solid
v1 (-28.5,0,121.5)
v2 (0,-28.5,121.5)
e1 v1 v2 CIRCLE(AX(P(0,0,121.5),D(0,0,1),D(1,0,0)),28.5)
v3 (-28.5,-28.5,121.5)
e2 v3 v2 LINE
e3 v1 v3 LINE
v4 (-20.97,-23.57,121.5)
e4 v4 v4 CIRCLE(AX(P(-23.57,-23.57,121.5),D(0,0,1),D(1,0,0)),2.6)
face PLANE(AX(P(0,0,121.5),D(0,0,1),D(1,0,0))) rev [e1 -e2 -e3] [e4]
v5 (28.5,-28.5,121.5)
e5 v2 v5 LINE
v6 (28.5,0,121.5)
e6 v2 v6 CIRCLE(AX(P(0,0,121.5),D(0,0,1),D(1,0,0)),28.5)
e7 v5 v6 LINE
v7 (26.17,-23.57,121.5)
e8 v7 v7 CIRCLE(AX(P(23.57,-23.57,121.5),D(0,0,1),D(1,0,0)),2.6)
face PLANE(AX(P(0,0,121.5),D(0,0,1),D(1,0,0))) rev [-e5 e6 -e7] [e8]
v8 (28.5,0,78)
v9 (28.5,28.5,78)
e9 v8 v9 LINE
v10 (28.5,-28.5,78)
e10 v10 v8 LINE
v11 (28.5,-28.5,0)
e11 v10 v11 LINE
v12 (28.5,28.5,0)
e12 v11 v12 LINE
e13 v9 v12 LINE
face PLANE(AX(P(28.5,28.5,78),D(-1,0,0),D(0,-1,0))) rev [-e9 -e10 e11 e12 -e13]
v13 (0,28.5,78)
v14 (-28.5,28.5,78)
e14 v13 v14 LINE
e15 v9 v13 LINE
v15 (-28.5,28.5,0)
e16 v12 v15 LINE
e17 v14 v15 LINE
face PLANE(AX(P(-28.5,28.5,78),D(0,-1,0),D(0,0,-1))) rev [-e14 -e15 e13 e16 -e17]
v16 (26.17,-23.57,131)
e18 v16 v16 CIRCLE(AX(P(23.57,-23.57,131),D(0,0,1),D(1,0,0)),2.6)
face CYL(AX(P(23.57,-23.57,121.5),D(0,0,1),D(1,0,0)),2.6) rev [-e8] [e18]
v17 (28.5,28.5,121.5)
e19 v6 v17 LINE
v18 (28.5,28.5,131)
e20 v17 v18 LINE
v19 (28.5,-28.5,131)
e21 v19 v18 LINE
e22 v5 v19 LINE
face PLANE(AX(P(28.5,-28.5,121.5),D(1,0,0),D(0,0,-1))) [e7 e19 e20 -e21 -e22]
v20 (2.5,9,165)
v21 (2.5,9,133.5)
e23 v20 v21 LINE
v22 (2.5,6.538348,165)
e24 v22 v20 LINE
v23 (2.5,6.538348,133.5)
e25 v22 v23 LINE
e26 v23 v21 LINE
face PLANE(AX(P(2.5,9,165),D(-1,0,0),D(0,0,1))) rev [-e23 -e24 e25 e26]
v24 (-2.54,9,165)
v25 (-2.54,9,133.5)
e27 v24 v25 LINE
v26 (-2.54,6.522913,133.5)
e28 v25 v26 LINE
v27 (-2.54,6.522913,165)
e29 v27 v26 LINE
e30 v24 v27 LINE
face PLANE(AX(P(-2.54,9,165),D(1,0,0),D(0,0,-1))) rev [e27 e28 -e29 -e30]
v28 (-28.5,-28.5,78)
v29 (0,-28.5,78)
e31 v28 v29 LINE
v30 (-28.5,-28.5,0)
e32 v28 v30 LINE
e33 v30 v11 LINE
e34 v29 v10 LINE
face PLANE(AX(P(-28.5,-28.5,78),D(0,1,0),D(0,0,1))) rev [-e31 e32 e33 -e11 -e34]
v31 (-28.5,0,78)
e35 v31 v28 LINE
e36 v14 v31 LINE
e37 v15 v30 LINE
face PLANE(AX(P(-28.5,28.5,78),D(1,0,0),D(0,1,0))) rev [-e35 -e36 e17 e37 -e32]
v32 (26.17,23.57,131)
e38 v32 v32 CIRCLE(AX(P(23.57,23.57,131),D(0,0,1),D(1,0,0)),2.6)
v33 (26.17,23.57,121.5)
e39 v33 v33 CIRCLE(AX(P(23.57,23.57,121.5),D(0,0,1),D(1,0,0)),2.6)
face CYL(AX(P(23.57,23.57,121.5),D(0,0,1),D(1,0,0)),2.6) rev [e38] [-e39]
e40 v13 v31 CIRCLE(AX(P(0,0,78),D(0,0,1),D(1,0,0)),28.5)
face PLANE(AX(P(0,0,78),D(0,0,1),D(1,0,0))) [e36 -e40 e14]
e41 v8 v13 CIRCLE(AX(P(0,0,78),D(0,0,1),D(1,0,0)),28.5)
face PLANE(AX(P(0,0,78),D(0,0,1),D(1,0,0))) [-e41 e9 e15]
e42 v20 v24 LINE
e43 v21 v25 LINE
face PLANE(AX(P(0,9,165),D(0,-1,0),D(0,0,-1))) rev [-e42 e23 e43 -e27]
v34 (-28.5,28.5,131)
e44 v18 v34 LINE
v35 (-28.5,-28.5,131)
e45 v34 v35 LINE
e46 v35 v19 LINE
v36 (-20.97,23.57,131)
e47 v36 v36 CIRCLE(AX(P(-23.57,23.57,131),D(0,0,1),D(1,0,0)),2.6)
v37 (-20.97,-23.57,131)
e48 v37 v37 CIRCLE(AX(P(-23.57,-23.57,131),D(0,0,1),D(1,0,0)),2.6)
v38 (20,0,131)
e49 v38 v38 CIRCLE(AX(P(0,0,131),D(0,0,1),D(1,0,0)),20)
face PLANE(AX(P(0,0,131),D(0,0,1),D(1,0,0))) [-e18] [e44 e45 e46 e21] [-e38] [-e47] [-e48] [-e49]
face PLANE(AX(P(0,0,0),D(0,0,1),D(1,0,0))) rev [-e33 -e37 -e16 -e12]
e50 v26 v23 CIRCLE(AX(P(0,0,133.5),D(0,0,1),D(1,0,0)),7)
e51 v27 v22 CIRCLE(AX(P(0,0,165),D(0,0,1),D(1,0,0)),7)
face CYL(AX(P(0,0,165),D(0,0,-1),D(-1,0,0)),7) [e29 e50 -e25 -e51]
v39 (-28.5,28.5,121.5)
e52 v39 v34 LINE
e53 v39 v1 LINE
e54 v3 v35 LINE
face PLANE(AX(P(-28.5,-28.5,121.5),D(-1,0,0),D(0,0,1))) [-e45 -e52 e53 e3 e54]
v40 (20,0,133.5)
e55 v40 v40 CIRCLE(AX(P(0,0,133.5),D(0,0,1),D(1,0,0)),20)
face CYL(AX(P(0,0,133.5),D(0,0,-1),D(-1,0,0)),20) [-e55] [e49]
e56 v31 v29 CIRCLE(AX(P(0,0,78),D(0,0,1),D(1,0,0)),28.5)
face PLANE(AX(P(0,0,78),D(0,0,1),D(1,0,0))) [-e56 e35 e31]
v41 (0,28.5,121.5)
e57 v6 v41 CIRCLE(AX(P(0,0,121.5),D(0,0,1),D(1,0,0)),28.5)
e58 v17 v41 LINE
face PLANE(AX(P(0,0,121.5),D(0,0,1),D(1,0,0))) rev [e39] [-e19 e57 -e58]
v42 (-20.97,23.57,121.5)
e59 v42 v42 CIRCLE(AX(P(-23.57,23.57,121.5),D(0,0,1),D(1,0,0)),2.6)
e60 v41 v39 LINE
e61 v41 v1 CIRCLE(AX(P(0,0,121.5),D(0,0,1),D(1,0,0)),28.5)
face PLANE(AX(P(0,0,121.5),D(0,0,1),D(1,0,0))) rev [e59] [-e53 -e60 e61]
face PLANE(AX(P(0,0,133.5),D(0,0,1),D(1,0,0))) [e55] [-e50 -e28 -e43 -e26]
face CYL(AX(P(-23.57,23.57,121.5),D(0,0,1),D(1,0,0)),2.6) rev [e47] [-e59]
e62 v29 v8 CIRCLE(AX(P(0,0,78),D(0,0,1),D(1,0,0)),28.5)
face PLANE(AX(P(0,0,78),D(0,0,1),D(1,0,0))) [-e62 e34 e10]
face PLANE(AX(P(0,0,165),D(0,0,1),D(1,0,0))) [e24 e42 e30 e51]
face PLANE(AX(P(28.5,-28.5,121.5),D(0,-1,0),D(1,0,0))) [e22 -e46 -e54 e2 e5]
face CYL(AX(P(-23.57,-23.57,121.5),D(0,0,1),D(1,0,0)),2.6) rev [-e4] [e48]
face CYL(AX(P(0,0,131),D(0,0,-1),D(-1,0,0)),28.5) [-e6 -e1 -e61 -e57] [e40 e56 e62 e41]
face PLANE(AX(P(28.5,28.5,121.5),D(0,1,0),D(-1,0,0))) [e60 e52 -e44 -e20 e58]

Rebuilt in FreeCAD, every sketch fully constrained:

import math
import FreeCAD as App
import Part
import Sketcher
from FreeCAD import Vector
Q = App.Units.Quantity

doc = App.newDocument("Part")
body = doc.addObject("PartDesign::Body", "Body")

sketch1 = doc.addObject("Sketcher::SketchObject", "Sketch")
body.addObject(sketch1)
sketch1.AttachmentSupport = (doc.XY_Plane, [""])
sketch1.MapMode = "FlatFace"
sketch1.addGeometry(Part.LineSegment(Vector(-28, 28, 0), Vector(-28, -28, 0)), False)
sketch1.addGeometry(Part.LineSegment(Vector(-28, -28, 0), Vector(28, -28, 0)), False)
sketch1.addGeometry(Part.LineSegment(Vector(28, -28, 0), Vector(28, 28, 0)), False)
sketch1.addGeometry(Part.LineSegment(Vector(28, 28, 0), Vector(-28, 28, 0)), False)
sketch1.addConstraint(Sketcher.Constraint("Coincident", 0, 2, 1, 1))
sketch1.addConstraint(Sketcher.Constraint("Coincident", 1, 2, 2, 1))
sketch1.addConstraint(Sketcher.Constraint("Coincident", 2, 2, 3, 1))
sketch1.addConstraint(Sketcher.Constraint("Coincident", 3, 2, 0, 1))
sketch1.addConstraint(Sketcher.Constraint("Vertical", 0))
sketch1.addConstraint(Sketcher.Constraint("Horizontal", 1))
sketch1.addConstraint(Sketcher.Constraint("Vertical", 2))
sketch1.addConstraint(Sketcher.Constraint("Horizontal", 3))
sketch1.addConstraint(Sketcher.Constraint("Symmetric", 0, 2, 2, 2, -1, 1))
sketch1.addConstraint(Sketcher.Constraint("Equal", 3, 0))
sketch1.addConstraint(Sketcher.Constraint("DistanceX", 1, 1, 1, 2, Q("57 mm")))
pad1 = doc.addObject("PartDesign::Pad", "Pad")
body.addObject(pad1)
pad1.Profile = sketch1
pad1.Length = 78

sketch2 = doc.addObject("Sketcher::SketchObject", "Sketch001")
body.addObject(sketch2)
sketch2.AttachmentSupport = (doc.XY_Plane, [""])
sketch2.MapMode = "FlatFace"
sketch2.AttachmentOffset = App.Placement(Vector(0, 0, 78), App.Rotation())
sketch2.addGeometry(Part.Circle(Vector(0, 0, 0), Vector(0, 0, 1), 28), False)
sketch2.addConstraint(Sketcher.Constraint("Coincident", 0, 3, -1, 1))
sketch2.addConstraint(Sketcher.Constraint("Diameter", 0, Q("57 mm")))
pad2 = doc.addObject("PartDesign::Pad", "Pad001")
body.addObject(pad2)
pad2.Profile = sketch2
pad2.Length = 53

sketch3 = doc.addObject("Sketcher::SketchObject", "Sketch002")
body.addObject(sketch3)
sketch3.AttachmentSupport = (doc.XY_Plane, [""])
sketch3.MapMode = "FlatFace"
sketch3.AttachmentOffset = App.Placement(Vector(0, 0, 131), App.Rotation())
sketch3.addGeometry(Part.Circle(Vector(0, 0, 0), Vector(0, 0, 1), 20), False)
sketch3.addConstraint(Sketcher.Constraint("Coincident", 0, 3, -1, 1))
sketch3.addConstraint(Sketcher.Constraint("Diameter", 0, Q("40 mm")))
pad3 = doc.addObject("PartDesign::Pad", "Pad002")
body.addObject(pad3)
pad3.Profile = sketch3
pad3.Length = 2.5

sketch4 = doc.addObject("Sketcher::SketchObject", "Sketch003")
body.addObject(sketch4)
sketch4.AttachmentSupport = (doc.XY_Plane, [""])
sketch4.MapMode = "FlatFace"
sketch4.AttachmentOffset = App.Placement(Vector(0, 0, 133.5), App.Rotation())
sketch4.addGeometry(Part.LineSegment(Vector(2.5, 6.5, 0), Vector(2.5, 9, 0)), False)
sketch4.addGeometry(Part.LineSegment(Vector(2.5, 9, 0), Vector(-2.5, 9, 0)), False)
sketch4.addGeometry(Part.LineSegment(Vector(-2.5, 9, 0), Vector(-2.5, 6.5, 0)), False)
sketch4.addGeometry(Part.ArcOfCircle(Part.Circle(Vector(0, 0, 0), Vector(0, 0, 1), 7), math.radians(111), math.radians(429)), False)
sketch4.addConstraint(Sketcher.Constraint("Coincident", 0, 2, 1, 1))
sketch4.addConstraint(Sketcher.Constraint("Coincident", 1, 2, 2, 1))
sketch4.addConstraint(Sketcher.Constraint("Coincident", 2, 2, 3, 1))
sketch4.addConstraint(Sketcher.Constraint("Coincident", 3, 2, 0, 1))
sketch4.addConstraint(Sketcher.Constraint("Vertical", 0))
sketch4.addConstraint(Sketcher.Constraint("Horizontal", 1))
sketch4.addConstraint(Sketcher.Constraint("Vertical", 2))
sketch4.addConstraint(Sketcher.Constraint("Coincident", 3, 3, -1, 1))
sketch4.addConstraint(Sketcher.Constraint("Radius", 3, Q("7 mm")))
sketch4.addConstraint(Sketcher.Constraint("DistanceY", -1, 1, 0, 2, Q("9 mm")))
sketch4.addConstraint(Sketcher.Constraint("DistanceX", 1, 2, 1, 1, Q("5.04 mm")))
sketch4.addConstraint(Sketcher.Constraint("DistanceX", -1, 1, 0, 2, Q("2.5 mm")))
pad4 = doc.addObject("PartDesign::Pad", "Pad003")
body.addObject(pad4)
pad4.Profile = sketch4
pad4.Length = 31.5

sketch5 = doc.addObject("Sketcher::SketchObject", "Sketch004")
body.addObject(sketch5)
sketch5.AttachmentSupport = (doc.XY_Plane, [""])
sketch5.MapMode = "FlatFace"
sketch5.AttachmentOffset = App.Placement(Vector(0, 0, 131), App.Rotation())
sketch5.addGeometry(Part.Circle(Vector(0, -17.5, 0), Vector(0, 0, 1), 2), False)
sketch5.addGeometry(Part.Circle(Vector(-17.5, 0, 0), Vector(0, 0, 1), 2), False)
sketch5.addGeometry(Part.Circle(Vector(0, 17.5, 0), Vector(0, 0, 1), 2), False)
sketch5.addGeometry(Part.Circle(Vector(17.5, 0, 0), Vector(0, 0, 1), 2), False)
sketch5.addConstraint(Sketcher.Constraint("Equal", 0, 1))
sketch5.addConstraint(Sketcher.Constraint("Equal", 1, 2))
sketch5.addConstraint(Sketcher.Constraint("Equal", 2, 3))
sketch5.addConstraint(Sketcher.Constraint("Symmetric", 0, 3, 2, 3, -1, 1))
sketch5.addConstraint(Sketcher.Constraint("Symmetric", 1, 3, 3, 3, -1, 1))
sketch5.addConstraint(Sketcher.Constraint("PointOnObject", 0, 3, -2))
sketch5.addConstraint(Sketcher.Constraint("PointOnObject", 1, 3, -1))
sketch5.addConstraint(Sketcher.Constraint("Diameter", 0, Q("4 mm")))
sketch5.addConstraint(Sketcher.Constraint("DistanceY", 0, 3, 2, 3, Q("35 mm")))
sketch5.addConstraint(Sketcher.Constraint("DistanceX", 1, 3, 3, 3, Q("35 mm")))
pocket1 = doc.addObject("PartDesign::Pocket", "Pocket")
body.addObject(pocket1)
pocket1.Profile = sketch5
pocket1.Length = 4

sketch6 = doc.addObject("Sketcher::SketchObject", "Sketch005")
body.addObject(sketch6)
sketch6.AttachmentSupport = (doc.XY_Plane, [""])
sketch6.MapMode = "FlatFace"
sketch6.AttachmentOffset = App.Placement(Vector(0, 0, 131), App.Rotation())
sketch6.addGeometry(Part.LineSegment(Vector(-28.5, 28.5, 0), Vector(-28.5, -28.5, 0)), False)
sketch6.addGeometry(Part.LineSegment(Vector(-28.5, -28.5, 0), Vector(28.5, -28.5, 0)), False)
sketch6.addGeometry(Part.LineSegment(Vector(28.5, -28.5, 0), Vector(28.5, 28.5, 0)), False)
sketch6.addGeometry(Part.LineSegment(Vector(28.5, 28.5, 0), Vector(-28.5, 28.5, 0)), False)
sketch6.addGeometry(Part.Circle(Vector(-23.6, -23.6, 0), Vector(0, 0, 1), 2.6), False)
sketch6.addGeometry(Part.Circle(Vector(23.6, -23.6, 0), Vector(0, 0, 1), 2.6), False)
sketch6.addGeometry(Part.Circle(Vector(-23.6, 23.6, 0), Vector(0, 0, 1), 2.6), False)
sketch6.addGeometry(Part.Circle(Vector(23.6, 23.6, 0), Vector(0, 0, 1), 2.6), False)
sketch6.addConstraint(Sketcher.Constraint("Coincident", 0, 2, 1, 1))
sketch6.addConstraint(Sketcher.Constraint("Coincident", 1, 2, 2, 1))
sketch6.addConstraint(Sketcher.Constraint("Coincident", 2, 2, 3, 1))
sketch6.addConstraint(Sketcher.Constraint("Coincident", 3, 2, 0, 1))
sketch6.addConstraint(Sketcher.Constraint("Vertical", 0))
sketch6.addConstraint(Sketcher.Constraint("Horizontal", 1))
sketch6.addConstraint(Sketcher.Constraint("Vertical", 2))
sketch6.addConstraint(Sketcher.Constraint("Horizontal", 3))
sketch6.addConstraint(Sketcher.Constraint("Equal", 4, 5))
sketch6.addConstraint(Sketcher.Constraint("Equal", 5, 6))
sketch6.addConstraint(Sketcher.Constraint("Equal", 6, 7))
sketch6.addConstraint(Sketcher.Constraint("Symmetric", 5, 3, 6, 3, -1, 1))
sketch6.addConstraint(Sketcher.Constraint("Symmetric", 4, 3, 7, 3, -1, 1))
sketch6.addConstraint(Sketcher.Constraint("Symmetric", 0, 2, 2, 2, -1, 1))
sketch6.addConstraint(Sketcher.Constraint("Symmetric", 4, 3, 5, 3, -2))
sketch6.addConstraint(Sketcher.Constraint("Equal", 3, 0))
sketch6.addConstraint(Sketcher.Constraint("Diameter", 4, Q("5.2 mm")))
sketch6.addConstraint(Sketcher.Constraint("DistanceX", 1, 1, 1, 2, Q("57 mm")))
sketch6.addConstraint(Sketcher.Constraint("DistanceX", 4, 3, -1, 1, Q("23.57 mm")))
sketch6.addConstraint(Sketcher.Constraint("DistanceY", 4, 3, -1, 1, Q("23.57 mm")))
pad5 = doc.addObject("PartDesign::Pad", "Pad004")
body.addObject(pad5)
pad5.Profile = sketch6
pad5.Length = 9.5
pad5.Reversed = True

doc.recompute()
